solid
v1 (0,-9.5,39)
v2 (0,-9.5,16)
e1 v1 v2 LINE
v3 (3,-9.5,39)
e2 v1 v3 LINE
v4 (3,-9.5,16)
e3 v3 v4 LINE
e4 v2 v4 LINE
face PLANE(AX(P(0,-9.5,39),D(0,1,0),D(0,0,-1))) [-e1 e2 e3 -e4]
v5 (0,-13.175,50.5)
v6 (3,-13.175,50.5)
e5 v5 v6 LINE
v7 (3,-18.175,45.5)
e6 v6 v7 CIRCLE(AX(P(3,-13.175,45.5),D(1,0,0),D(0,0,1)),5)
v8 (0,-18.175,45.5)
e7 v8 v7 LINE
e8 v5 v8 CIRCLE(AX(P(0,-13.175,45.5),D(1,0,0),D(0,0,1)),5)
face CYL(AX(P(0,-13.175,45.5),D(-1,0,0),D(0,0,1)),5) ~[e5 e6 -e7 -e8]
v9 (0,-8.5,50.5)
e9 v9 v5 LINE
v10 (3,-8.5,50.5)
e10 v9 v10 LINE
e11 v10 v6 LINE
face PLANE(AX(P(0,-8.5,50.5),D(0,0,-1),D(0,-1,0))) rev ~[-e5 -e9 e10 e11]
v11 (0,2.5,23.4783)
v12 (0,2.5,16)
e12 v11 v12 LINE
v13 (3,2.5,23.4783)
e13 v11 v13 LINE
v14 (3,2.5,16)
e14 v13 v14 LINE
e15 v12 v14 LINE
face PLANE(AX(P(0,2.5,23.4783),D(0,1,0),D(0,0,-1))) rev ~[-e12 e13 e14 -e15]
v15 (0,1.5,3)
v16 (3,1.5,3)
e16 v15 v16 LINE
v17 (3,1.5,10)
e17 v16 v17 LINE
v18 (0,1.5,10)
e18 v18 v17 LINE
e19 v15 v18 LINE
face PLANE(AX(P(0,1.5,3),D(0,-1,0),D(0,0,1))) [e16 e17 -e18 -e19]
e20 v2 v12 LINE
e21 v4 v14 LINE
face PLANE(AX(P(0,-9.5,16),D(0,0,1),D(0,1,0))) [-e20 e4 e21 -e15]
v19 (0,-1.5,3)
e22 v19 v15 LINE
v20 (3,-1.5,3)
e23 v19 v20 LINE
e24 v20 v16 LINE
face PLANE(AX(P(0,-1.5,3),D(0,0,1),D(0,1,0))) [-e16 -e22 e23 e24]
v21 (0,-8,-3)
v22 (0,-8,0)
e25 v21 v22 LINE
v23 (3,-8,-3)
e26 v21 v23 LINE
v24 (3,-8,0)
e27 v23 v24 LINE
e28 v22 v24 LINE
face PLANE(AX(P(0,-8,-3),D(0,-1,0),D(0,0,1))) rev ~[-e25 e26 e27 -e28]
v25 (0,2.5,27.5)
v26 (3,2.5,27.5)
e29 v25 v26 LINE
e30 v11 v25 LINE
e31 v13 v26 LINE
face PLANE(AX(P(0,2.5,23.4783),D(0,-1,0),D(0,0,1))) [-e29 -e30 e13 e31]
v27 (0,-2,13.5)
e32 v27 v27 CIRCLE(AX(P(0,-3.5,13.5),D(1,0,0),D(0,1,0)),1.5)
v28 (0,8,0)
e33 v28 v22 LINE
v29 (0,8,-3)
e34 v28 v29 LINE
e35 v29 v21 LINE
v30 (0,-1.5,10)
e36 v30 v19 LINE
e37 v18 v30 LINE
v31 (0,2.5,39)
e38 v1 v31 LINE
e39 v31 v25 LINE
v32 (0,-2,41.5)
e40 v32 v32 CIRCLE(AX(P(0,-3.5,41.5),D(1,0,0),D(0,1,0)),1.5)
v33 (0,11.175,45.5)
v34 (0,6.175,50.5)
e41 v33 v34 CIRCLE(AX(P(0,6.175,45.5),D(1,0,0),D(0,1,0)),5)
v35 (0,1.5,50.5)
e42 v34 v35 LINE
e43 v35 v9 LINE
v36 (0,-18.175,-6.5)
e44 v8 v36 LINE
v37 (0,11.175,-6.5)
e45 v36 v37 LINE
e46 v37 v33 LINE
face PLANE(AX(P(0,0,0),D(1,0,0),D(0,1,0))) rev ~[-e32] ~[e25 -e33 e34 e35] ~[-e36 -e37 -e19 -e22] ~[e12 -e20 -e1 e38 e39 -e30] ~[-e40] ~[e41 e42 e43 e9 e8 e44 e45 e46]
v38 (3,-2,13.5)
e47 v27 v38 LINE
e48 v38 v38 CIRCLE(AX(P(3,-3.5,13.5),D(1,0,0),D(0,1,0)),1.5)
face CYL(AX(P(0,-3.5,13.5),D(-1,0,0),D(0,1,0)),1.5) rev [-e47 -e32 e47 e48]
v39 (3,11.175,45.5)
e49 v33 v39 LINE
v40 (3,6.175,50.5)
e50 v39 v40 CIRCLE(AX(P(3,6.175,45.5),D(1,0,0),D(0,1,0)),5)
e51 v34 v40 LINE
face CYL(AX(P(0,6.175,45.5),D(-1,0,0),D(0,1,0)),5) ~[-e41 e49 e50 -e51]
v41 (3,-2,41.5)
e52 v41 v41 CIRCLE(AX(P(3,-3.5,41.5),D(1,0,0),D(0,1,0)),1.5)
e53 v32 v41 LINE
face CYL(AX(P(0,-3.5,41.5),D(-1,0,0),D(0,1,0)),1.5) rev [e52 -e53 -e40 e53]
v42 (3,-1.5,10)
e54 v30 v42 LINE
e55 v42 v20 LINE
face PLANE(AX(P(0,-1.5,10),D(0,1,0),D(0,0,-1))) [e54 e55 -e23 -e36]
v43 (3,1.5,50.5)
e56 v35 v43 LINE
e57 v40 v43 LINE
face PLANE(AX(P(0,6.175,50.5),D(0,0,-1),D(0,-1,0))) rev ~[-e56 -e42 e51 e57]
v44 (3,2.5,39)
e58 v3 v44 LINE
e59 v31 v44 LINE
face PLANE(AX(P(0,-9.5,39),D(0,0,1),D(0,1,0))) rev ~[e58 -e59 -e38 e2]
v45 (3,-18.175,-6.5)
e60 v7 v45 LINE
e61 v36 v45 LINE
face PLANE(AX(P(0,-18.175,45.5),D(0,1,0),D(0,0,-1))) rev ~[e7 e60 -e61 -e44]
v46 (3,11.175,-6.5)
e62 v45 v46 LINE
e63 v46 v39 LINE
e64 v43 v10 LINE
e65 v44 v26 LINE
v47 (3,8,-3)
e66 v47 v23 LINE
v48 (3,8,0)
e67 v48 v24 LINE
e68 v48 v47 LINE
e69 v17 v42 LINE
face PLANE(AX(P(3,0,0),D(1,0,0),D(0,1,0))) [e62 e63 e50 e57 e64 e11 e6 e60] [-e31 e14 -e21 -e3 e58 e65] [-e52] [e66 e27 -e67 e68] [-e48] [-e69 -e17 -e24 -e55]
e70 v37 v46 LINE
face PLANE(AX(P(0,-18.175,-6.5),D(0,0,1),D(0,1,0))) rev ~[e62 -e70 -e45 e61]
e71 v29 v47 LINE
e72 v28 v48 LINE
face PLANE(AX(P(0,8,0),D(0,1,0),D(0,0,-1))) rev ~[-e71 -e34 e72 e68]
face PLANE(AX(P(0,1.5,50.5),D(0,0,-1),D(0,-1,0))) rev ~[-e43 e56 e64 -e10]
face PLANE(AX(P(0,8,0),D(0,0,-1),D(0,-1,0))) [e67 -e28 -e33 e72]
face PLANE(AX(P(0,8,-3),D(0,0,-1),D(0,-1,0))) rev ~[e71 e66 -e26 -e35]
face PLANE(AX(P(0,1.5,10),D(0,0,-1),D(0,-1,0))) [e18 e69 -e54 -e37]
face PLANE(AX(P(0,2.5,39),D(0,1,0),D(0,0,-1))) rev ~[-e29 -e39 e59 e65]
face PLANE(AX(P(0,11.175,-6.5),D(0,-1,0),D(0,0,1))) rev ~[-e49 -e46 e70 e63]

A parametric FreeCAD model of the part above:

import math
import FreeCAD as App
import Part
import Sketcher

V = App.Vector


def add_polygon(sketch, points):
    """Adds a closed chain of lines whose ends are joined by coincident constraints."""
    first, n = sketch.GeometryCount, len(points)
    for a, b in zip(points, points[1:] + points[:1]):
        sketch.addGeometry(Part.LineSegment(App.Vector(*a, 0), App.Vector(*b, 0)), False)
    for i in range(n):
        sketch.addConstraint(Sketcher.Constraint("Coincident", first + i, 2, first + (i + 1) % n, 1))

doc = App.newDocument("Part")
body = doc.addObject("PartDesign::Body", "Body")

# Sketch on YZ plane
sketch1 = body.newObject("Sketcher::SketchObject", "Sketch")
sketch1.AttachmentSupport = (doc.getObject("YZ_Plane"), [""])
sketch1.MapMode = "FlatFace"
sketch1.addGeometry(Part.LineSegment(V(-18.2, 45.5, 0), V(-18.2, -6.5, 0)), False)  # 0
sketch1.addGeometry(Part.LineSegment(V(-18.2, -6.5, 0), V(11.2, -6.5, 0)), False)  # 1
sketch1.addGeometry(Part.LineSegment(V(11.2, -6.5, 0), V(11.2, 45.5, 0)), False)  # 2
sketch1.addGeometry(Part.ArcOfCircle(Part.Circle(V(6.2, 45.5, 0), V(0, 0, 1), 5), math.radians(0), math.radians(90)), False)  # 3
sketch1.addGeometry(Part.LineSegment(V(6.2, 50.5, 0), V(-13.2, 50.5, 0)), False)  # 4
sketch1.addGeometry(Part.ArcOfCircle(Part.Circle(V(-13.2, 45.5, 0), V(0, 0, 1), 5), math.radians(90), math.radians(180)), False)  # 5
add_polygon(sketch1, [(-8, 0), (8, 0), (8, -3), (-8, -3)])  # lines 6-9
add_polygon(sketch1, [(1.5, 10), (1.5, 3), (-1.5, 3), (-1.5, 10)])  # lines 10-13
sketch1.addGeometry(Part.Circle(V(-3.5, 13.5, 0), V(0, 0, 1), 1.5), False)  # 14
add_polygon(sketch1, [(-9.5, 16), (-9.5, 39), (2.5, 39), (2.5, 16)])  # lines 15-18
sketch1.addGeometry(Part.Circle(V(-3.5, 41.5, 0), V(0, 0, 1), 1.5), False)  # 19
sketch1.addConstraint([
    Sketcher.Constraint("Coincident", 0, 2, 1, 1),
    Sketcher.Constraint("Coincident", 1, 2, 2, 1),
    Sketcher.Constraint("Tangent", 2, 2, 3, 1),
    Sketcher.Constraint("Tangent", 3, 2, 4, 1),
    Sketcher.Constraint("Tangent", 4, 2, 5, 1),
    Sketcher.Constraint("Tangent", 5, 2, 0, 1),
    Sketcher.Constraint("Vertical", 0),
    Sketcher.Constraint("Horizontal", 1),
    Sketcher.Constraint("Vertical", 2),
    Sketcher.Constraint("Horizontal", 4),
    Sketcher.Constraint("Horizontal", 6),
    Sketcher.Constraint("Vertical", 7),
    Sketcher.Constraint("Horizontal", 8),
    Sketcher.Constraint("Vertical", 9),
    Sketcher.Constraint("Vertical", 10),
    Sketcher.Constraint("Horizontal", 11),
    Sketcher.Constraint("Vertical", 12),
    Sketcher.Constraint("Horizontal", 13),
    Sketcher.Constraint("Vertical", 15),
    Sketcher.Constraint("Horizontal", 16),
    Sketcher.Constraint("Vertical", 17),
    Sketcher.Constraint("Horizontal", 18),
    Sketcher.Constraint("Equal", 3, 5),
    Sketcher.Constraint("Equal", 14, 19),
    Sketcher.Constraint("Symmetric", 6, 2, 9, 2, -1, 1),
    Sketcher.Constraint("Vertical", 14, 3, 19, 3),
    Sketcher.Constraint("Equal", 13, 7),
    Sketcher.Constraint("Radius", 3, 5.0),
    Sketcher.Constraint("Diameter", 14, 3.0),
    Sketcher.Constraint("DistanceX", 14, 3, 10, 2, 5.0),
    Sketcher.Constraint("DistanceX", 6, 1, 6, 2, 16.0),
    Sketcher.Constraint("DistanceX", 11, 2, 11, 1, 3.0),
    Sketcher.Constraint("DistanceX", 16, 1, 16, 2, 12.0),
    Sketcher.Constraint("DistanceY", 0, 2, 0, 1, 52.0),
    Sketcher.Constraint("DistanceY", 10, 2, 10, 1, 7.0),
    Sketcher.Constraint("DistanceY", 15, 1, 15, 2, 23.0),
    Sketcher.Constraint("DistanceY", -1, 1, 10, 2, 3.0),
    Sketcher.Constraint("DistanceY", -1, 1, 15, 2, 39.0),
    Sketcher.Constraint("DistanceY", 14, 3, 3, 3, 32.0),
    Sketcher.Constraint("DistanceY", 19, 3, 3, 3, 4.0),
    Sketcher.Constraint("DistanceX", 15, 2, 19, 3, 6.0),
    Sketcher.Constraint("DistanceX", 1, 1, 1, 2, 29.35),
    Sketcher.Constraint("DistanceY", -1, 1, 3, 3, 45.5),
    Sketcher.Constraint("DistanceX", 14, 3, -1, 1, 3.5),
    Sketcher.Constraint("DistanceX", -1, 1, 3, 3, 6.175),
])
pad1 = body.newObject("PartDesign::Pad", "Pad")
pad1.Profile = sketch1
pad1.Length = 3

doc.recompute()
